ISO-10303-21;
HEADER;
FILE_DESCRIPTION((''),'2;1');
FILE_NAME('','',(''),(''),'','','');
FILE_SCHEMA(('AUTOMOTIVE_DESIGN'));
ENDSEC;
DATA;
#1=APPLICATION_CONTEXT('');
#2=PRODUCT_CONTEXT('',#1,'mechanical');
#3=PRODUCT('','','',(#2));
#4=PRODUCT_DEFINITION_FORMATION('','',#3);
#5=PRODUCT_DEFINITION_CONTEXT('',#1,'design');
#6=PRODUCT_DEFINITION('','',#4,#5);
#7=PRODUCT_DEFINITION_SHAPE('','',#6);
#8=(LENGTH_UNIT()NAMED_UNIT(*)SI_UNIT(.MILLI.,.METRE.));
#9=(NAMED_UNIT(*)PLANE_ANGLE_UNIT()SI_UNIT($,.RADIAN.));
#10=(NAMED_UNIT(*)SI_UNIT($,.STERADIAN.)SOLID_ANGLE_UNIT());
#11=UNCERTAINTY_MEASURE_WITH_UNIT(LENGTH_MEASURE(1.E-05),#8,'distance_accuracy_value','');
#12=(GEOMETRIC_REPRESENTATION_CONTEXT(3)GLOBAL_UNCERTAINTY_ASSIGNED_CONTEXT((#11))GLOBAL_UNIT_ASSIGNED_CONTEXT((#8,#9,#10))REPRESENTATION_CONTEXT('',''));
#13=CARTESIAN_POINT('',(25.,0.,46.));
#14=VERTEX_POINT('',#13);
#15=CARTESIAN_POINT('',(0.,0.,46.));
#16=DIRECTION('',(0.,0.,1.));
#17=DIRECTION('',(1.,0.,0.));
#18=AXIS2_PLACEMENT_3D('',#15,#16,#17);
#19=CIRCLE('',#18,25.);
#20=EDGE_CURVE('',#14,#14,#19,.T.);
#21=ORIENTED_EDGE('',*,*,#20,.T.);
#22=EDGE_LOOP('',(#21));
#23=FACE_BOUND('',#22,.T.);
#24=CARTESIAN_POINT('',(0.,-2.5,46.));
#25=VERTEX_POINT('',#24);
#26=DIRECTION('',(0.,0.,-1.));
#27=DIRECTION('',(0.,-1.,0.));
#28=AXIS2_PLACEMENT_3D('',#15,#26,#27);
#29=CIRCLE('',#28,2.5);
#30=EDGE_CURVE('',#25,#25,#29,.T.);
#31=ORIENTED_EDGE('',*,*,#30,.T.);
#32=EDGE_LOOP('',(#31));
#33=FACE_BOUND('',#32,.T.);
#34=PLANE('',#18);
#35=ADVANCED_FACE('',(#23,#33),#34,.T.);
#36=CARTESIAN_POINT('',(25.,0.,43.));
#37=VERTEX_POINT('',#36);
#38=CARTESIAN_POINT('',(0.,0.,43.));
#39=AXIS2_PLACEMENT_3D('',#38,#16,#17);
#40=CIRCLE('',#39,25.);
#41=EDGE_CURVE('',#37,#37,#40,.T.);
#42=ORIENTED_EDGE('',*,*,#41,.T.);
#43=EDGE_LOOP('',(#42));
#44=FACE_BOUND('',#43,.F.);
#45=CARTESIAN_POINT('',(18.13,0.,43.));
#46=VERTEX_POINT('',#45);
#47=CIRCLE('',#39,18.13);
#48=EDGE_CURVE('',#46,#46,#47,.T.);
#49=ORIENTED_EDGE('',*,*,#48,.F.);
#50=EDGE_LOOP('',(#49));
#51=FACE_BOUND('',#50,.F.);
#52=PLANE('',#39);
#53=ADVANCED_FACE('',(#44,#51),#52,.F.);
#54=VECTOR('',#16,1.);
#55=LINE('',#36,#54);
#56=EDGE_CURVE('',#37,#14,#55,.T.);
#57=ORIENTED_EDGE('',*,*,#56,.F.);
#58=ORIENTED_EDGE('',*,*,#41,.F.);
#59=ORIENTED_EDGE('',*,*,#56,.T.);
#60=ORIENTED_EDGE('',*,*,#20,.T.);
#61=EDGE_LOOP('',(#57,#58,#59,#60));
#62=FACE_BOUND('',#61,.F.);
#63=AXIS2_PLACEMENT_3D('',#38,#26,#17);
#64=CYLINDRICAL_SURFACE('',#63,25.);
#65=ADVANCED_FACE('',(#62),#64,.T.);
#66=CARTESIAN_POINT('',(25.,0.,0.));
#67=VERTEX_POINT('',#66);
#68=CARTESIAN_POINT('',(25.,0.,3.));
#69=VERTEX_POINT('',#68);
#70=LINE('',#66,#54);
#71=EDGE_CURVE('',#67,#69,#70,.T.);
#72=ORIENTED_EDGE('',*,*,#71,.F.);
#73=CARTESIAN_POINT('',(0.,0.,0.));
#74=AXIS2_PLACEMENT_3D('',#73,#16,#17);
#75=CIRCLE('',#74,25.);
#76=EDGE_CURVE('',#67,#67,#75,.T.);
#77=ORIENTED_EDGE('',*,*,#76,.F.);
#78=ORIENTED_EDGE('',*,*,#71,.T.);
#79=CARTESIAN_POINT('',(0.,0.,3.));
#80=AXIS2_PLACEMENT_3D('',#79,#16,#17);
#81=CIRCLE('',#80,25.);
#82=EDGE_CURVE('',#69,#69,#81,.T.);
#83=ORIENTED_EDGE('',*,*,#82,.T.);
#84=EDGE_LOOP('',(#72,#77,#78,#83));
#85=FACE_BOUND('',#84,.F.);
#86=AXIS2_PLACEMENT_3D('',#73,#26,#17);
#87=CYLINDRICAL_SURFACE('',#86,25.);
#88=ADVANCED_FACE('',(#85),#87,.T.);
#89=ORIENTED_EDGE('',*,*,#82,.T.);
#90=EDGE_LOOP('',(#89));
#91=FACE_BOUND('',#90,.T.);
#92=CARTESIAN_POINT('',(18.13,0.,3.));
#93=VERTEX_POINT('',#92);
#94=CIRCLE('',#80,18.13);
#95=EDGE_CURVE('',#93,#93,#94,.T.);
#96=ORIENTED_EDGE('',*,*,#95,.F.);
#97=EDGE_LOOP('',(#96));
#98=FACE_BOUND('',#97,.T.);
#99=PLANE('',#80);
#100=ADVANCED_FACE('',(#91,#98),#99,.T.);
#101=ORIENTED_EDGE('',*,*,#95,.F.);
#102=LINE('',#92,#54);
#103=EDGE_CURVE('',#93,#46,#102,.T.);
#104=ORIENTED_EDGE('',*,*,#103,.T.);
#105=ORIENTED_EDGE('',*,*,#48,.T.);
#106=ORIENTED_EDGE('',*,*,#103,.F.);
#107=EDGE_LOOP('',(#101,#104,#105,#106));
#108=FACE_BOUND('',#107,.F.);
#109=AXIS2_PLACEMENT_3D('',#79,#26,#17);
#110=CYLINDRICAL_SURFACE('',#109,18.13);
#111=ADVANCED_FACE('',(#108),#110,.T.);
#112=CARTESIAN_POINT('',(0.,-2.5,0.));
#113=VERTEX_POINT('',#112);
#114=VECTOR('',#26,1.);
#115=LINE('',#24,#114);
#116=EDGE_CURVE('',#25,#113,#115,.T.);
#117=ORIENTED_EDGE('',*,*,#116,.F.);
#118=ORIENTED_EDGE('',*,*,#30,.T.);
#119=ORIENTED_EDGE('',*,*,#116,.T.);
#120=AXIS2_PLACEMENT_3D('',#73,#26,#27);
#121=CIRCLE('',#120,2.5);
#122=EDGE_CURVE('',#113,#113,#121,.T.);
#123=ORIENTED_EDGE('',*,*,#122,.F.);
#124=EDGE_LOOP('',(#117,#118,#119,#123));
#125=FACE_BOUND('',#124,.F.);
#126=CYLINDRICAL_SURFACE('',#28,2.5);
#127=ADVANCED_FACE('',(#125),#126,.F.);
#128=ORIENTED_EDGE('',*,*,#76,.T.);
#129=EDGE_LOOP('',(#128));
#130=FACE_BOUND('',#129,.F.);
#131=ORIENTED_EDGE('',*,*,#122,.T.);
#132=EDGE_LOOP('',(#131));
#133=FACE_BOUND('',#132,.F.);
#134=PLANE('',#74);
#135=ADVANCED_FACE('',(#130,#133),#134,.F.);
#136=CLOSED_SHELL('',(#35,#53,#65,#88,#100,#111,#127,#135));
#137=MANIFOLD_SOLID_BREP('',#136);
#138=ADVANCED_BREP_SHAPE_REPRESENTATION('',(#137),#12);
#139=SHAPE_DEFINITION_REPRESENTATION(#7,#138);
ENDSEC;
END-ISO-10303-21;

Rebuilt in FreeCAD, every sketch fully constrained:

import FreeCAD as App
import Part
import Sketcher
from FreeCAD import Vector
Q = App.Units.Quantity

doc = App.newDocument("Part")
body = doc.addObject("PartDesign::Body", "Body")

# Sketch on XY plane
sketch1 = body.newObject("Sketcher::SketchObject", "Sketch")
sketch1.AttachmentSupport = (doc.getObject("XY_Plane"), [""])
sketch1.MapMode = "FlatFace"
sketch1.addGeometry(Part.Circle(Vector(0, 0, 0), Vector(0, 0, 1), 25), False)
sketch1.addConstraint([
    Sketcher.Constraint("Coincident", 0, 3, -1, 1),
    Sketcher.Constraint("Diameter", 0, Q("50 mm")),
])
pad1 = body.newObject("PartDesign::Pad", "Pad")
pad1.Profile = sketch1
pad1.Length = 3

# Sketch on XY plane
sketch2 = body.newObject("Sketcher::SketchObject", "Sketch001")
sketch2.AttachmentSupport = (doc.getObject("XY_Plane"), [""])
sketch2.MapMode = "FlatFace"
sketch2.AttachmentOffset = App.Placement(Vector(0, 0, 3), App.Rotation())
sketch2.addGeometry(Part.Circle(Vector(0, 0, 0), Vector(0, 0, 1), 18), False)
sketch2.addConstraint([
    Sketcher.Constraint("Coincident", 0, 3, -1, 1),
    Sketcher.Constraint("Diameter", 0, Q("36.26 mm")),
])
pad2 = body.newObject("PartDesign::Pad", "Pad001")
pad2.Profile = sketch2
pad2.Length = 40

# Sketch on XY plane
sketch3 = body.newObject("Sketcher::SketchObject", "Sketch002")
sketch3.AttachmentSupport = (doc.getObject("XY_Plane"), [""])
sketch3.MapMode = "FlatFace"
sketch3.AttachmentOffset = App.Placement(Vector(0, 0, 43), App.Rotation())
sketch3.addGeometry(Part.Circle(Vector(0, 0, 0), Vector(0, 0, 1), 25), False)
sketch3.addConstraint([
    Sketcher.Constraint("Coincident", 0, 3, -1, 1),
    Sketcher.Constraint("Diameter", 0, Q("50 mm")),
])
pad3 = body.newObject("PartDesign::Pad", "Pad002")
pad3.Profile = sketch3
pad3.Length = 3

# Sketch on XY plane
sketch4 = body.newObject("Sketcher::SketchObject", "Sketch003")
sketch4.AttachmentSupport = (doc.getObject("XY_Plane"), [""])
sketch4.MapMode = "FlatFace"
sketch4.AttachmentOffset = App.Placement(Vector(0, 0, 46), App.Rotation())
sketch4.addGeometry(Part.Circle(Vector(0, 0, 0), Vector(0, 0, 1), 2.5), False)
sketch4.addConstraint([
    Sketcher.Constraint("Coincident", 0, 3, -1, 1),
    Sketcher.Constraint("Diameter", 0, Q("5 mm")),
])
doc.recompute()
hole = body.newObject("PartDesign::Hole", "Hole")
hole.Profile = sketch4
hole.ThreadType = "None"
hole.Diameter = 5
hole.DepthType = "Dimension"
hole.Depth = 46
hole.DrillPoint = "Flat"

doc.recompute()
